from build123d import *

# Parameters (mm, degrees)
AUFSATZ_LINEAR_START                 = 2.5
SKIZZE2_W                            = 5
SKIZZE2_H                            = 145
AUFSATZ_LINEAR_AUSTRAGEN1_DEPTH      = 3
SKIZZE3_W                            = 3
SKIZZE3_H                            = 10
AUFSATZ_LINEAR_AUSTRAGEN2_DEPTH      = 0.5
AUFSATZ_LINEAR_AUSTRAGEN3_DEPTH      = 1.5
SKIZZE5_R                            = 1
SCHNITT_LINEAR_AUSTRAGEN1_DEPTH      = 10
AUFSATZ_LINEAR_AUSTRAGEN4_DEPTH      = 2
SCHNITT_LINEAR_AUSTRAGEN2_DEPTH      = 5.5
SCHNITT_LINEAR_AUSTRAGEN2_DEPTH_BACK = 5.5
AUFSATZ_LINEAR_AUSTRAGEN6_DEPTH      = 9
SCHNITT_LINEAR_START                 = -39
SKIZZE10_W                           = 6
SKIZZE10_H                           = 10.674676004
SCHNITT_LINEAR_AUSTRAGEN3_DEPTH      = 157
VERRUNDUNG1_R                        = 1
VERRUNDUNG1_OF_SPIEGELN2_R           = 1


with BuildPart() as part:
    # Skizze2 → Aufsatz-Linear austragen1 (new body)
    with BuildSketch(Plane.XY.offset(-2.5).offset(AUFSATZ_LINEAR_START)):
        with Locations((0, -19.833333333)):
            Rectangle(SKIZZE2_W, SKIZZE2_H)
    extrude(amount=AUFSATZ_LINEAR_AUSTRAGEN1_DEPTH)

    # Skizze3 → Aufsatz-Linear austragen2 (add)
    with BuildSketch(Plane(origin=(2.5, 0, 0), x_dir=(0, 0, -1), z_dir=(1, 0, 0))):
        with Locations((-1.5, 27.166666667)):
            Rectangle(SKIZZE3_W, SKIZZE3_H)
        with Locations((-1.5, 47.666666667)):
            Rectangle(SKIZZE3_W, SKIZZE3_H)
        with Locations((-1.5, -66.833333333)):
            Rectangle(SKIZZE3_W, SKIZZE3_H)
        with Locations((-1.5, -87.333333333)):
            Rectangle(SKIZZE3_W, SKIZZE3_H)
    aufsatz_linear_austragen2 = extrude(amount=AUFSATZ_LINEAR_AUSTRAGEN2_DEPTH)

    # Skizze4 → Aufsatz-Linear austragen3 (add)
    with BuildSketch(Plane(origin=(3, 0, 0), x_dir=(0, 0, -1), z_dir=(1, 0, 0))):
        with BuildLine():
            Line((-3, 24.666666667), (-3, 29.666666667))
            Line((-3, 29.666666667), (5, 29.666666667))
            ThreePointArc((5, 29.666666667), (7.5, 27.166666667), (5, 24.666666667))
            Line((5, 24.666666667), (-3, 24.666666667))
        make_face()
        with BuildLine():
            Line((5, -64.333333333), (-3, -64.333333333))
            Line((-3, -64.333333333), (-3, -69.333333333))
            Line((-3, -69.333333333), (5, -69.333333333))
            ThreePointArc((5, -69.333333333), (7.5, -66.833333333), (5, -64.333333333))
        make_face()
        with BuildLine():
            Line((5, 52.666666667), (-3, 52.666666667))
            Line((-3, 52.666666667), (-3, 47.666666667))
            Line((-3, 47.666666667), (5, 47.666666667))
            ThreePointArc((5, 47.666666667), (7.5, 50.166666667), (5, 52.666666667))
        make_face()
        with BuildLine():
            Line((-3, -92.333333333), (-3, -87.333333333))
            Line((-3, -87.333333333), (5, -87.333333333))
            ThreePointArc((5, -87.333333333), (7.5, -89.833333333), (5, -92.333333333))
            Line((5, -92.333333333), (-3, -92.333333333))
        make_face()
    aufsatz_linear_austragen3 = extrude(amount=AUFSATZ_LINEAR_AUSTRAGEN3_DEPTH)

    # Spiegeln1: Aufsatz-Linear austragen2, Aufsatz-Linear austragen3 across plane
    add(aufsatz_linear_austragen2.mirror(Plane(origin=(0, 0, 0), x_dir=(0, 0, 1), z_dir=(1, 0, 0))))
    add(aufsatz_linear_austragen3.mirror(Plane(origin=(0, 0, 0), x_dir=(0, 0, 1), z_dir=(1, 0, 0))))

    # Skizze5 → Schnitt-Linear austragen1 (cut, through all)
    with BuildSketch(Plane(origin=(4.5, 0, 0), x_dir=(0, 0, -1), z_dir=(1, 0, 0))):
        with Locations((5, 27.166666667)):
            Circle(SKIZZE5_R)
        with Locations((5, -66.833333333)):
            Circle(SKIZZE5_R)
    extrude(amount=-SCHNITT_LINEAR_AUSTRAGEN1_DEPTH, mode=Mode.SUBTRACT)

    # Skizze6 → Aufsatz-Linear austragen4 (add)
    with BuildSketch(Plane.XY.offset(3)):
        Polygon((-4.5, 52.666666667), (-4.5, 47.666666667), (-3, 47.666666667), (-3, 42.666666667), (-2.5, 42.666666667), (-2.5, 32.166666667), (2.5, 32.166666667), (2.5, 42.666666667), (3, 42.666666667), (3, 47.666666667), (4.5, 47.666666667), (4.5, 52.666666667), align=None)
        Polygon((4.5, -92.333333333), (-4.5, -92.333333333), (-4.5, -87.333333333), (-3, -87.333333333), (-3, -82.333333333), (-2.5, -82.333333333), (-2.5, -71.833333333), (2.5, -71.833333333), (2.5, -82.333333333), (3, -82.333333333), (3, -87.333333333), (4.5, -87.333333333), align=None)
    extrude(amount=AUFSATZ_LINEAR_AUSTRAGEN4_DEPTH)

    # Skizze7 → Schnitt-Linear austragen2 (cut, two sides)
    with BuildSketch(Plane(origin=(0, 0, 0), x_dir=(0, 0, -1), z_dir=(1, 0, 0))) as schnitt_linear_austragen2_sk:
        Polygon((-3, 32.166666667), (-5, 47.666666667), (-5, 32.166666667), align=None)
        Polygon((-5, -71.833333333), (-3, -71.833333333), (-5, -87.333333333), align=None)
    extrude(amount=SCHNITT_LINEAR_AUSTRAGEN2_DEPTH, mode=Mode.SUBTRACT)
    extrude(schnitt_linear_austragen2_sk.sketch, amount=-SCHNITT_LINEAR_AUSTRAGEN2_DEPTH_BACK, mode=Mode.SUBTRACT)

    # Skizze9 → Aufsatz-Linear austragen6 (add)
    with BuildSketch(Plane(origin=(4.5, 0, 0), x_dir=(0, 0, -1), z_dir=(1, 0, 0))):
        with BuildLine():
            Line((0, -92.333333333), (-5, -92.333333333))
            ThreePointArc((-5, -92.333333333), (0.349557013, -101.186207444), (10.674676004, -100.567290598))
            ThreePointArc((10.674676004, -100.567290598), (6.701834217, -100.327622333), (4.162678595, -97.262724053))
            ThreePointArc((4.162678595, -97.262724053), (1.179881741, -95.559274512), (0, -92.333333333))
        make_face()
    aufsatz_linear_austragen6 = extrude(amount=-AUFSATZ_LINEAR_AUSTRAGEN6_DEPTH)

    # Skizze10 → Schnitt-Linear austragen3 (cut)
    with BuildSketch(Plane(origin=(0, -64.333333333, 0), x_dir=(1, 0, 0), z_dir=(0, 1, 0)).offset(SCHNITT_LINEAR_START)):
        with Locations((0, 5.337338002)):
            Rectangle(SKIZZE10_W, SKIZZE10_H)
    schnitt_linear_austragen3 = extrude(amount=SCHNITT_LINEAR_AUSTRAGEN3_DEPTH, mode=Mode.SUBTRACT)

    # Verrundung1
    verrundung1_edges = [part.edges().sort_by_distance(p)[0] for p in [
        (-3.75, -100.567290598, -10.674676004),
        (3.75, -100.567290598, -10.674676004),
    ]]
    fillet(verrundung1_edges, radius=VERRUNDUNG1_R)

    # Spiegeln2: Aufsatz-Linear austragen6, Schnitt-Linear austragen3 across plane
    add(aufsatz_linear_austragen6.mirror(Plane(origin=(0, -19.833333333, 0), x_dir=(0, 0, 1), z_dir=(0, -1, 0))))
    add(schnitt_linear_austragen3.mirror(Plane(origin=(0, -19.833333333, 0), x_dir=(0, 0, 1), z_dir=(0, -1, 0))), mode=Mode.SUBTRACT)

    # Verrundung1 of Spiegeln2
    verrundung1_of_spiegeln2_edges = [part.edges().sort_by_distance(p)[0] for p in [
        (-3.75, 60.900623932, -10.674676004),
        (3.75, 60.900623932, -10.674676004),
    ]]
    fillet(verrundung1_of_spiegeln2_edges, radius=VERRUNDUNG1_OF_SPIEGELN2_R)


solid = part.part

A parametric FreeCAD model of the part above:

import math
import FreeCAD as App
import Part
import Sketcher

V = App.Vector
Q = App.Units.Quantity


def edges_at(feature, points):
    """Names of the edges that pass closest to the given points."""
    edges = feature.Shape.Edges
    near = lambda p: min(range(len(edges)), key=lambda i: edges[i].distToShape(Part.Vertex(*p))[0])
    return sorted({f"Edge{near(p) + 1}" for p in points})


def add_polygon(sketch, points):
    """Adds a closed chain of lines whose ends are joined by coincident constraints."""
    first, n = sketch.GeometryCount, len(points)
    for a, b in zip(points, points[1:] + points[:1]):
        sketch.addGeometry(Part.LineSegment(App.Vector(*a, 0), App.Vector(*b, 0)), False)
    for i in range(n):
        sketch.addConstraint(Sketcher.Constraint("Coincident", first + i, 2, first + (i + 1) % n, 1))

doc = App.newDocument("Part")
params = doc.addObject("Spreadsheet::Sheet", "Params")
for row, (alias, value) in enumerate([
    ("sketch1_width", "5 mm"),
    ("sketch1_height", "145 mm"),
    ("pad1_length", "3 mm"),
    ("sketch2_width", "10 mm"),
    ("sketch2_height", "3 mm"),
    ("pad2_length", "0.5 mm"),
    ("sketch3_radius", "2.5 mm"),
    ("sketch3_height", "8 mm"),
    ("pad3_length", "1.5 mm"),
    ("sketch4_diameter", "2 mm"),
    ("sketch5_width", "5 mm"),
    ("sketch5_width2", "9 mm"),
    ("sketch5_width3", "1.5 mm"),
    ("sketch5_height", "10.5 mm"),
    ("pad4_length", "2 mm"),
    ("sketch6_height", "2 mm"),
    ("sketch6_width", "15.5 mm"),
    ("sketch7_radius", "10 mm"),
    ("sketch7_radius2", "5 mm"),
    ("pad5_length", "9 mm"),
    ("sketch8_width", "6 mm"),
    ("pocket3_length", "157 mm"),
    ("fillet_radius", "1 mm"),
    ("fillet2_radius", "1 mm"),
], start=1):
    params.set(f"A{row}", alias)
    params.set(f"B{row}", "=" + value)
    params.setAlias(f"B{row}", alias)

body = doc.addObject("PartDesign::Body", "Body")

# Sketch on XY plane
sketch1 = body.newObject("Sketcher::SketchObject", "Sketch")
sketch1.AttachmentSupport = (doc.getObject("XY_Plane"), [""])
sketch1.MapMode = "FlatFace"
add_polygon(sketch1, [(-2, 53), (-2, -92), (2, -92), (2, 53)])  # lines 0-3
sketch1.addConstraint([
    Sketcher.Constraint("Vertical", 0),
    Sketcher.Constraint("Horizontal", 1),
    Sketcher.Constraint("Vertical", 2),
    Sketcher.Constraint("Horizontal", 3),
    Sketcher.Constraint("DistanceX", 1, 1, 1, 2, Q("5 mm")),
    Sketcher.Constraint("DistanceY", 0, 2, 0, 1, Q("145 mm")),
    Sketcher.Constraint("DistanceX", 0, 2, -1, 1, Q("2.5 mm")),
    Sketcher.Constraint("DistanceY", 0, 2, -1, 1, Q("92.333333 mm")),
])
sketch1.setExpression("Constraints[8]", "Params.sketch1_width")
sketch1.setExpression("Constraints[9]", "Params.sketch1_height")
pad1 = body.newObject("PartDesign::Pad", "Pad")
pad1.Profile = sketch1
pad1.setExpression("Length", "Params.pad1_length")

# Sketch on YZ plane
sketch2 = body.newObject("Sketcher::SketchObject", "Sketch001")
sketch2.AttachmentSupport = (doc.getObject("YZ_Plane"), [""])
sketch2.MapMode = "FlatFace"
sketch2.AttachmentOffset = App.Placement(V(0, 0, 2.5), App.Rotation())
add_polygon(sketch2, [(32.2, 3), (22.2, 3), (22.2, 0), (32.2, 0)])  # lines 0-3
add_polygon(sketch2, [(52.7, 3), (42.7, 3), (42.7, 0), (52.7, 0)])  # lines 4-7
add_polygon(sketch2, [(-61.8, 3), (-71.8, 3), (-71.8, 0), (-61.8, 0)])  # lines 8-11
add_polygon(sketch2, [(-82.3, 3), (-92.3, 3), (-92.3, 0), (-82.3, 0)])  # lines 12-15
sketch2.addConstraint([
    Sketcher.Constraint("Horizontal", 0),
    Sketcher.Constraint("Vertical", 1),
    Sketcher.Constraint("Horizontal", 2),
    Sketcher.Constraint("Vertical", 3),
    Sketcher.Constraint("Horizontal", 4),
    Sketcher.Constraint("Vertical", 5),
    Sketcher.Constraint("Horizontal", 6),
    Sketcher.Constraint("Vertical", 7),
    Sketcher.Constraint("Horizontal", 8),
    Sketcher.Constraint("Vertical", 9),
    Sketcher.Constraint("Horizontal", 10),
    Sketcher.Constraint("Vertical", 11),
    Sketcher.Constraint("Horizontal", 12),
    Sketcher.Constraint("Vertical", 13),
    Sketcher.Constraint("Horizontal", 14),
    Sketcher.Constraint("Vertical", 15),
    Sketcher.Constraint("PointOnObject", 1, 2, -1),
    Sketcher.Constraint("PointOnObject", 5, 2, -1),
    Sketcher.Constraint("PointOnObject", 9, 2, -1),
    Sketcher.Constraint("PointOnObject", 13, 2, -1),
    Sketcher.Constraint("Horizontal", 3, 2, 4, 2),
    Sketcher.Constraint("Horizontal", 7, 2, 8, 2),
    Sketcher.Constraint("Horizontal", 11, 2, 12, 2),
    Sketcher.Constraint("Equal", 2, 4),
    Sketcher.Constraint("Equal", 6, 8),
    Sketcher.Constraint("Equal", 10, 12),
    Sketcher.Constraint("DistanceX", 0, 2, 0, 1, Q("10 mm")),
    Sketcher.Constraint("DistanceY", 1, 2, 1, 1, Q("3 mm")),
    Sketcher.Constraint("DistanceX", 8, 2, 0, 2, Q("94 mm")),
    Sketcher.Constraint("DistanceX", 3, 2, 4, 2, Q("10.5 mm")),
    Sketcher.Constraint("DistanceX", 12, 2, 8, 2, Q("20.5 mm")),
    Sketcher.Constraint("DistanceX", -1, 1, 0, 2, Q("22.166667 mm")),
])
sketch2.setExpression("Constraints[42]", "Params.sketch2_width")
sketch2.setExpression("Constraints[43]", "Params.sketch2_height")
pad2 = body.newObject("PartDesign::Pad", "Pad001")
pad2.Profile = sketch2
pad2.setExpression("Length", "Params.pad2_length")

# Sketch on YZ plane
sketch3 = body.newObject("Sketcher::SketchObject", "Sketch002")
sketch3.AttachmentSupport = (doc.getObject("YZ_Plane"), [""])
sketch3.MapMode = "FlatFace"
sketch3.AttachmentOffset = App.Placement(V(0, 0, 3), App.Rotation())
sketch3.addGeometry([
    Part.LineSegment(V(29.7, 3, 0), V(24.7, 3, 0)),  # 0
    Part.LineSegment(V(24.7, 3, 0), V(24.7, -5, 0)),  # 1
    Part.ArcOfCircle(Part.Circle(V(27.2, -5, 0), V(0, 0, 1), 2.5), math.radians(180), math.radians(360)),  # 2
    Part.LineSegment(V(29.7, -5, 0), V(29.7, 3, 0)),  # 3
    Part.LineSegment(V(-64.3, -5, 0), V(-64.3, 3, 0)),  # 4
    Part.LineSegment(V(-64.3, 3, 0), V(-69.3, 3, 0)),  # 5
    Part.LineSegment(V(-69.3, 3, 0), V(-69.3, -5, 0)),  # 6
    Part.ArcOfCircle(Part.Circle(V(-66.8, -5, 0), V(0, 0, 1), 2.5), math.radians(180), math.radians(360)),  # 7
    Part.LineSegment(V(52.7, -5, 0), V(52.7, 3, 0)),  # 8
    Part.LineSegment(V(52.7, 3, 0), V(47.7, 3, 0)),  # 9
    Part.LineSegment(V(47.7, 3, 0), V(47.7, -5, 0)),  # 10
    Part.ArcOfCircle(Part.Circle(V(50.2, -5, 0), V(0, 0, 1), 2.5), math.radians(180), math.radians(360)),  # 11
    Part.LineSegment(V(-87.3, 3, 0), V(-92.3, 3, 0)),  # 12
    Part.LineSegment(V(-92.3, 3, 0), V(-92.3, -5, 0)),  # 13
    Part.ArcOfCircle(Part.Circle(V(-89.8, -5, 0), V(0, 0, 1), 2.5), math.radians(180), math.radians(360)),  # 14
    Part.LineSegment(V(-87.3, -5, 0), V(-87.3, 3, 0)),  # 15
], False)
sketch3.addConstraint([
    Sketcher.Constraint("Coincident", 0, 2, 1, 1),
    Sketcher.Constraint("Tangent", 1, 2, 2, 1),
    Sketcher.Constraint("Tangent", 2, 2, 3, 1),
    Sketcher.Constraint("Coincident", 3, 2, 0, 1),
    Sketcher.Constraint("Coincident", 4, 2, 5, 1),
    Sketcher.Constraint("Coincident", 5, 2, 6, 1),
    Sketcher.Constraint("Tangent", 6, 2, 7, 1),
    Sketcher.Constraint("Tangent", 7, 2, 4, 1),
    Sketcher.Constraint("Coincident", 8, 2, 9, 1),
    Sketcher.Constraint("Coincident", 9, 2, 10, 1),
    Sketcher.Constraint("Tangent", 10, 2, 11, 1),
    Sketcher.Constraint("Tangent", 11, 2, 8, 1),
    Sketcher.Constraint("Coincident", 12, 2, 13, 1),
    Sketcher.Constraint("Tangent", 13, 2, 14, 1),
    Sketcher.Constraint("Tangent", 14, 2, 15, 1),
    Sketcher.Constraint("Coincident", 15, 2, 12, 1),
    Sketcher.Constraint("Horizontal", 0),
    Sketcher.Constraint("Vertical", 1),
    Sketcher.Constraint("Vertical", 3),
    Sketcher.Constraint("Vertical", 4),
    Sketcher.Constraint("Horizontal", 5),
    Sketcher.Constraint("Vertical", 6),
    Sketcher.Constraint("Vertical", 8),
    Sketcher.Constraint("Horizontal", 9),
    Sketcher.Constraint("Vertical", 10),
    Sketcher.Constraint("Horizontal", 12),
    Sketcher.Constraint("Vertical", 13),
    Sketcher.Constraint("Vertical", 15),
    Sketcher.Constraint("Equal", 2, 7),
    Sketcher.Constraint("Equal", 7, 11),
    Sketcher.Constraint("Equal", 11, 14),
    Sketcher.Constraint("Horizontal", 2, 3, 7, 3),
    Sketcher.Constraint("Horizontal", 7, 3, 11, 3),
    Sketcher.Constraint("Horizontal", 11, 3, 14, 3),
    Sketcher.Constraint("Horizontal", 3, 2, 4, 2),
    Sketcher.Constraint("Horizontal", 5, 2, 8, 2),
    Sketcher.Constraint("Horizontal", 9, 2, 12, 2),
    Sketcher.Constraint("Radius", 2, Q("2.5 mm")),
    Sketcher.Constraint("DistanceY", 1, 2, 1, 1, Q("8 mm")),
    Sketcher.Constraint("DistanceY", 2, 3, -1, 1, Q("5 mm")),
    Sketcher.Constraint("DistanceX", 7, 3, 2, 3, Q("94 mm")),
    Sketcher.Constraint("DistanceX", 2, 3, 11, 3, Q("23 mm")),
    Sketcher.Constraint("DistanceX", 14, 3, 7, 3, Q("23 mm")),
    Sketcher.Constraint("DistanceX", -1, 1, 2, 3, Q("27.166667 mm")),
])
sketch3.setExpression("Constraints[37]", "Params.sketch3_radius")
sketch3.setExpression("Constraints[38]", "Params.sketch3_height")
pad3 = body.newObject("PartDesign::Pad", "Pad002")
pad3.Profile = sketch3
pad3.setExpression("Length", "Params.pad3_length")
doc.recompute()

mirrored = body.newObject("PartDesign::Mirrored", "Mirrored")
mirrored.Originals = [pad2, pad3]
mirrored.MirrorPlane = (doc.getObject("YZ_Plane"), [""])
body.Tip = mirrored

# Sketch on YZ plane
sketch4 = body.newObject("Sketcher::SketchObject", "Sketch003")
sketch4.AttachmentSupport = (doc.getObject("YZ_Plane"), [""])
sketch4.MapMode = "FlatFace"
sketch4.AttachmentOffset = App.Placement(V(0, 0, 4.5), App.Rotation())
sketch4.addGeometry([
    Part.Circle(V(27.2, -5, 0), V(0, 0, 1), 1),
    Part.Circle(V(-66.8, -5, 0), V(0, 0, 1), 1),
], False)
sketch4.addConstraint([
    Sketcher.Constraint("Equal", 0, 1),
    Sketcher.Constraint("Horizontal", 0, 3, 1, 3),
    Sketcher.Constraint("Diameter", 0, Q("2 mm")),
    Sketcher.Constraint("DistanceY", 0, 3, -1, 1, Q("5 mm")),
    Sketcher.Constraint("DistanceX", 1, 3, 0, 3, Q("94 mm")),
    Sketcher.Constraint("DistanceX", -1, 1, 0, 3, Q("27.166667 mm")),
])
sketch4.setExpression("Constraints[2]", "Params.sketch4_diameter")
pocket1 = body.newObject("PartDesign::Pocket", "Pocket")
pocket1.Profile = sketch4
pocket1.Type = "ThroughAll"

# Sketch on XY plane
sketch5 = body.newObject("Sketcher::SketchObject", "Sketch004")
sketch5.AttachmentSupport = (doc.getObject("XY_Plane"), [""])
sketch5.MapMode = "FlatFace"
sketch5.AttachmentOffset = App.Placement(V(0, 0, 3), App.Rotation())
add_polygon(sketch5, [(-4.5, 52.7), (-4.5, 47.7), (-3, 47.7), (-3, 42.7), (-2.5, 42.7), (-2.5, 32.2), (2.5, 32.2), (2.5, 42.7), (3, 42.7), (3, 47.7), (4.5, 47.7), (4.5, 52.7)])  # lines 0-11
add_polygon(sketch5, [(-4.5, -92.3), (4.5, -92.3), (4.5, -87.3), (3, -87.3), (3, -82.3), (2.5, -82.3), (2.5, -71.8), (-2.5, -71.8), (-2.5, -82.3), (-3, -82.3), (-3, -87.3), (-4.5, -87.3)])  # lines 12-23
sketch5.addConstraint([
    Sketcher.Constraint("Vertical", 0),
    Sketcher.Constraint("Horizontal", 1),
    Sketcher.Constraint("Vertical", 2),
    Sketcher.Constraint("Horizontal", 3),
    Sketcher.Constraint("Vertical", 4),
    Sketcher.Constraint("Horizontal", 5),
    Sketcher.Constraint("Vertical", 6),
    Sketcher.Constraint("Horizontal", 7),
    Sketcher.Constraint("Vertical", 8),
    Sketcher.Constraint("Horizontal", 9),
    Sketcher.Constraint("Vertical", 10),
    Sketcher.Constraint("Horizontal", 11),
    Sketcher.Constraint("Horizontal", 12),
    Sketcher.Constraint("Vertical", 13),
    Sketcher.Constraint("Horizontal", 14),
    Sketcher.Constraint("Vertical", 15),
    Sketcher.Constraint("Horizontal", 16),
    Sketcher.Constraint("Vertical", 17),
    Sketcher.Constraint("Horizontal", 18),
    Sketcher.Constraint("Vertical", 19),
    Sketcher.Constraint("Horizontal", 20),
    Sketcher.Constraint("Vertical", 21),
    Sketcher.Constraint("Horizontal", 22),
    Sketcher.Constraint("Vertical", 23),
    Sketcher.Constraint("Symmetric", 3, 2, 6, 2, -2),
    Sketcher.Constraint("Symmetric", 1, 2, 8, 2, -2),
    Sketcher.Constraint("Symmetric", 16, 2, 19, 2, -2),
    Sketcher.Constraint("Symmetric", 14, 2, 21, 2, -2),
    Sketcher.Constraint("Vertical", 10, 2, 12, 2),
    Sketcher.Constraint("Vertical", 8, 2, 14, 2),
    Sketcher.Constraint("Vertical", 6, 2, 16, 2),
    Sketcher.Constraint("Vertical", 11, 2, 22, 2),
    Sketcher.Constraint("Equal", 1, 9),
    Sketcher.Constraint("Equal", 18, 0),
    Sketcher.Constraint("Equal", 0, 2),
    Sketcher.Constraint("Equal", 10, 13),
    Sketcher.Constraint("Equal", 13, 15),
    Sketcher.Constraint("Equal", 6, 17),
    Sketcher.Constraint("DistanceX", 5, 1, 5, 2, Q("5 mm")),
    Sketcher.Constraint("DistanceX", 11, 2, 11, 1, Q("9 mm")),
    Sketcher.Constraint("DistanceX", 1, 1, 1, 2, Q("1.5 mm")),
    Sketcher.Constraint("DistanceY", 4, 2, 4, 1, Q("10.5 mm")),
    Sketcher.Constraint("DistanceY", 12, 2, 7, 2, Q("135 mm")),
    Sketcher.Constraint("DistanceY", -1, 1, 0, 2, Q("47.666667 mm")),
])
sketch5.setExpression("Constraints[62]", "Params.sketch5_width")
sketch5.setExpression("Constraints[63]", "Params.sketch5_width2")
sketch5.setExpression("Constraints[64]", "Params.sketch5_width3")
sketch5.setExpression("Constraints[65]", "Params.sketch5_height")
pad4 = body.newObject("PartDesign::Pad", "Pad003")
pad4.Profile = sketch5
pad4.setExpression("Length", "Params.pad4_length")

# Sketch on YZ plane
sketch6 = body.newObject("Sketcher::SketchObject", "Sketch005")
sketch6.AttachmentSupport = (doc.getObject("YZ_Plane"), [""])
sketch6.MapMode = "FlatFace"
add_polygon(sketch6, [(32.2, 3), (47.7, 5), (32.2, 5)])  # lines 0-2
add_polygon(sketch6, [(-71.8, 3), (-71.8, 5), (-87.3, 5)])  # lines 3-5
sketch6.addConstraint([
    Sketcher.Constraint("Horizontal", 1),
    Sketcher.Constraint("Vertical", 2),
    Sketcher.Constraint("Vertical", 3),
    Sketcher.Constraint("Horizontal", 4),
    Sketcher.Constraint("Horizontal", 1, 2, 3, 2),
    Sketcher.Constraint("Horizontal", 2, 2, 5, 2),
    Sketcher.Constraint("Equal", 1, 4),
    Sketcher.Constraint("DistanceY", 2, 2, 2, 1, Q("2 mm")),
    Sketcher.Constraint("DistanceX", 1, 2, 1, 1, Q("15.5 mm")),
    Sketcher.Constraint("DistanceY", -1, 1, 0, 2, Q("5 mm")),
    Sketcher.Constraint("DistanceX", 3, 2, 1, 2, Q("104 mm")),
    Sketcher.Constraint("DistanceX", -1, 1, 0, 2, Q("47.666667 mm")),
])
sketch6.setExpression("Constraints[13]", "Params.sketch6_height")
sketch6.setExpression("Constraints[14]", "Params.sketch6_width")
pocket2 = body.newObject("PartDesign::Pocket", "Pocket001")
pocket2.Profile = sketch6
pocket2.Type = "ThroughAll"
pocket2.Midplane = True

# Sketch on YZ plane
sketch7 = body.newObject("Sketcher::SketchObject", "Sketch006")
sketch7.AttachmentSupport = (doc.getObject("YZ_Plane"), [""])
sketch7.MapMode = "FlatFace"
sketch7.AttachmentOffset = App.Placement(V(0, 0, 4.5), App.Rotation())
sketch7.addGeometry([
    Part.LineSegment(V(-92, 0, 0), V(-92, 5, 0)),
    Part.ArcOfCircle(Part.Circle(V(-92, -5, 0), V(0, 0, 1), 10), math.radians(90), math.radians(215)),
    Part.ArcOfCircle(Part.Circle(V(-96, -9, 0), V(0, 0, 1), 5), math.radians(106), math.radians(200)),
    Part.ArcOfCircle(Part.Circle(V(-92, -5, 0), V(0, 0, 1), 5), math.radians(90), math.radians(170)),
], False)
sketch7.addConstraint([
    Sketcher.Constraint("Coincident", 0, 2, 1, 1),
    Sketcher.Constraint("Coincident", 1, 2, 2, 2),
    Sketcher.Constraint("Coincident", 2, 1, 3, 2),
    Sketcher.Constraint("Coincident", 3, 1, 0, 1),
    Sketcher.Constraint("Vertical", 0),
    Sketcher.Constraint("Coincident", 3, 3, 1, 3),
    Sketcher.Constraint("Equal", 2, 3),
    Sketcher.Constraint("PointOnObject", 3, 1, -1),
    Sketcher.Constraint("Vertical", 3, 3, 0, 2),
    Sketcher.Constraint("Radius", 1, Q("10 mm")),
    Sketcher.Constraint("Radius", 2, Q("5 mm")),
    Sketcher.Constraint("DistanceX", 1, 2, -1, 1, Q("100.567291 mm")),
    Sketcher.Constraint("DistanceY", 2, 1, -1, 1, Q("4.162679 mm")),
    Sketcher.Constraint("DistanceY", 1, 2, 2, 3, Q("1.71021 mm")),
])
sketch7.setExpression("Constraints[9]", "Params.sketch7_radius")
sketch7.setExpression("Constraints[10]", "Params.sketch7_radius2")
pad5 = body.newObject("PartDesign::Pad", "Pad004")
pad5.Profile = sketch7
pad5.setExpression("Length", "Params.pad5_length")
pad5.Reversed = True

# Sketch on XZ plane
sketch8 = body.newObject("Sketcher::SketchObject", "Sketch007")
sketch8.AttachmentSupport = (doc.getObject("XZ_Plane"), [""])
sketch8.MapMode = "FlatFace"
sketch8.AttachmentOffset = App.Placement(V(0, 0, 103.333333), App.Rotation())
add_polygon(sketch8, [(-3, -11), (-3, 0), (3, 0), (3, -11)])  # lines 0-3
sketch8.addConstraint([
    Sketcher.Constraint("Vertical", 0),
    Sketcher.Constraint("Horizontal", 1),
    Sketcher.Constraint("Vertical", 2),
    Sketcher.Constraint("Horizontal", 3),
    Sketcher.Constraint("Symmetric", 0, 2, 1, 2, -1, 1),
    Sketcher.Constraint("DistanceX", 1, 1, 1, 2, Q("6 mm")),
    Sketcher.Constraint("DistanceY", 0, 1, 0, 2, Q("10.674676 mm")),
])
sketch8.setExpression("Constraints[9]", "Params.sketch8_width")
pocket3 = body.newObject("PartDesign::Pocket", "Pocket002")
pocket3.Profile = sketch8
pocket3.setExpression("Length", "Params.pocket3_length")
doc.recompute()

fillet = body.newObject("PartDesign::Fillet", "Fillet")
fillet.Base = (pocket3, edges_at(pocket3, [(-3.75, -100.567, -10.675), (3.75, -100.567, -10.675)]))
fillet.setExpression("Radius", "Params.fillet_radius")
doc.recompute()

datumplane = body.newObject("PartDesign::Plane", "DatumPlane")
datumplane.AttachmentSupport = (doc.getObject("XZ_Plane"), [""])
datumplane.MapMode = "FlatFace"
datumplane.AttachmentOffset = App.Placement(V(0, 0, 19.833333), App.Rotation())
mirrored2 = body.newObject("PartDesign::Mirrored", "Mirrored001")
mirrored2.Originals = [pad5, pocket3]
mirrored2.MirrorPlane = (datumplane, [""])
body.Tip = mirrored2
doc.recompute()

fillet2 = body.newObject("PartDesign::Fillet", "Fillet001")
fillet2.Base = (mirrored2, edges_at(mirrored2, [(-3.75, 60.901, -10.675), (3.75, 60.901, -10.675)]))
fillet2.setExpression("Radius", "Params.fillet2_radius")

doc.recompute()
